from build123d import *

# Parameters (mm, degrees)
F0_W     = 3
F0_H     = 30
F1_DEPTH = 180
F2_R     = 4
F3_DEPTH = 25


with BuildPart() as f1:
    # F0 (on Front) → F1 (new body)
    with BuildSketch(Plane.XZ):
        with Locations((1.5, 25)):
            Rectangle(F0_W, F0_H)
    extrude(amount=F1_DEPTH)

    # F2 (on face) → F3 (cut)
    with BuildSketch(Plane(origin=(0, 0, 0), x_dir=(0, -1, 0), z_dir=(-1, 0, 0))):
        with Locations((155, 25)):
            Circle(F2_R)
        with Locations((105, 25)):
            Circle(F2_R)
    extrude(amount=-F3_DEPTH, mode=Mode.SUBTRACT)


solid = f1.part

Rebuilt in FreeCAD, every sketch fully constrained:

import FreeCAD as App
import Part
import Sketcher
from FreeCAD import Vector

doc = App.newDocument("Part")
body = doc.addObject("PartDesign::Body", "Body")

# Sketch on XZ plane
sketch1 = body.newObject("Sketcher::SketchObject", "Sketch")
sketch1.AttachmentSupport = (doc.getObject("XZ_Plane"), [""])
sketch1.MapMode = "FlatFace"
sketch1.addGeometry(Part.LineSegment(Vector(0, 40, 0), Vector(0, 10, 0)), False)
sketch1.addGeometry(Part.LineSegment(Vector(0, 10, 0), Vector(3, 10, 0)), False)
sketch1.addGeometry(Part.LineSegment(Vector(3, 10, 0), Vector(3, 40, 0)), False)
sketch1.addGeometry(Part.LineSegment(Vector(3, 40, 0), Vector(0, 40, 0)), False)
sketch1.addConstraint(Sketcher.Constraint("Coincident", 0, 2, 1, 1))
sketch1.addConstraint(Sketcher.Constraint("Coincident", 1, 2, 2, 1))
sketch1.addConstraint(Sketcher.Constraint("Coincident", 2, 2, 3, 1))
sketch1.addConstraint(Sketcher.Constraint("Coincident", 3, 2, 0, 1))
sketch1.addConstraint(Sketcher.Constraint("Vertical", 0))
sketch1.addConstraint(Sketcher.Constraint("Horizontal", 1))
sketch1.addConstraint(Sketcher.Constraint("Vertical", 2))
sketch1.addConstraint(Sketcher.Constraint("Horizontal", 3))
sketch1.addConstraint(Sketcher.Constraint("PointOnObject", 0, 2, -2))
sketch1.addConstraint(Sketcher.Constraint("DistanceX", 1, 1, 1, 2, 3.0))
sketch1.addConstraint(Sketcher.Constraint("DistanceY", 0, 2, 0, 1, 30.0))
sketch1.addConstraint(Sketcher.Constraint("DistanceY", -1, 1, 0, 2, 10.0))
pad1 = body.newObject("PartDesign::Pad", "Pad")
pad1.Profile = sketch1
pad1.Length = 180

# Sketch on YZ plane
sketch2 = body.newObject("Sketcher::SketchObject", "Sketch001")
sketch2.AttachmentSupport = (doc.getObject("YZ_Plane"), [""])
sketch2.MapMode = "FlatFace"
sketch2.addGeometry(Part.Circle(Vector(-155, 25, 0), Vector(0, 0, 1), 4), False)
sketch2.addGeometry(Part.Circle(Vector(-105, 25, 0), Vector(0, 0, 1), 4), False)
sketch2.addConstraint(Sketcher.Constraint("Equal", 0, 1))
sketch2.addConstraint(Sketcher.Constraint("Horizontal", 0, 3, 1, 3))
sketch2.addConstraint(Sketcher.Constraint("Diameter", 0, 8.0))
sketch2.addConstraint(Sketcher.Constraint("DistanceX", 0, 3, -1, 1, 155.0))
sketch2.addConstraint(Sketcher.Constraint("DistanceY", -1, 1, 0, 3, 25.0))
sketch2.addConstraint(Sketcher.Constraint("DistanceX", 1, 3, -1, 1, 105.0))
pocket1 = body.newObject("PartDesign::Pocket", "Pocket")
pocket1.Profile = sketch2
pocket1.Length = 25
pocket1.Reversed = True

doc.recompute()
